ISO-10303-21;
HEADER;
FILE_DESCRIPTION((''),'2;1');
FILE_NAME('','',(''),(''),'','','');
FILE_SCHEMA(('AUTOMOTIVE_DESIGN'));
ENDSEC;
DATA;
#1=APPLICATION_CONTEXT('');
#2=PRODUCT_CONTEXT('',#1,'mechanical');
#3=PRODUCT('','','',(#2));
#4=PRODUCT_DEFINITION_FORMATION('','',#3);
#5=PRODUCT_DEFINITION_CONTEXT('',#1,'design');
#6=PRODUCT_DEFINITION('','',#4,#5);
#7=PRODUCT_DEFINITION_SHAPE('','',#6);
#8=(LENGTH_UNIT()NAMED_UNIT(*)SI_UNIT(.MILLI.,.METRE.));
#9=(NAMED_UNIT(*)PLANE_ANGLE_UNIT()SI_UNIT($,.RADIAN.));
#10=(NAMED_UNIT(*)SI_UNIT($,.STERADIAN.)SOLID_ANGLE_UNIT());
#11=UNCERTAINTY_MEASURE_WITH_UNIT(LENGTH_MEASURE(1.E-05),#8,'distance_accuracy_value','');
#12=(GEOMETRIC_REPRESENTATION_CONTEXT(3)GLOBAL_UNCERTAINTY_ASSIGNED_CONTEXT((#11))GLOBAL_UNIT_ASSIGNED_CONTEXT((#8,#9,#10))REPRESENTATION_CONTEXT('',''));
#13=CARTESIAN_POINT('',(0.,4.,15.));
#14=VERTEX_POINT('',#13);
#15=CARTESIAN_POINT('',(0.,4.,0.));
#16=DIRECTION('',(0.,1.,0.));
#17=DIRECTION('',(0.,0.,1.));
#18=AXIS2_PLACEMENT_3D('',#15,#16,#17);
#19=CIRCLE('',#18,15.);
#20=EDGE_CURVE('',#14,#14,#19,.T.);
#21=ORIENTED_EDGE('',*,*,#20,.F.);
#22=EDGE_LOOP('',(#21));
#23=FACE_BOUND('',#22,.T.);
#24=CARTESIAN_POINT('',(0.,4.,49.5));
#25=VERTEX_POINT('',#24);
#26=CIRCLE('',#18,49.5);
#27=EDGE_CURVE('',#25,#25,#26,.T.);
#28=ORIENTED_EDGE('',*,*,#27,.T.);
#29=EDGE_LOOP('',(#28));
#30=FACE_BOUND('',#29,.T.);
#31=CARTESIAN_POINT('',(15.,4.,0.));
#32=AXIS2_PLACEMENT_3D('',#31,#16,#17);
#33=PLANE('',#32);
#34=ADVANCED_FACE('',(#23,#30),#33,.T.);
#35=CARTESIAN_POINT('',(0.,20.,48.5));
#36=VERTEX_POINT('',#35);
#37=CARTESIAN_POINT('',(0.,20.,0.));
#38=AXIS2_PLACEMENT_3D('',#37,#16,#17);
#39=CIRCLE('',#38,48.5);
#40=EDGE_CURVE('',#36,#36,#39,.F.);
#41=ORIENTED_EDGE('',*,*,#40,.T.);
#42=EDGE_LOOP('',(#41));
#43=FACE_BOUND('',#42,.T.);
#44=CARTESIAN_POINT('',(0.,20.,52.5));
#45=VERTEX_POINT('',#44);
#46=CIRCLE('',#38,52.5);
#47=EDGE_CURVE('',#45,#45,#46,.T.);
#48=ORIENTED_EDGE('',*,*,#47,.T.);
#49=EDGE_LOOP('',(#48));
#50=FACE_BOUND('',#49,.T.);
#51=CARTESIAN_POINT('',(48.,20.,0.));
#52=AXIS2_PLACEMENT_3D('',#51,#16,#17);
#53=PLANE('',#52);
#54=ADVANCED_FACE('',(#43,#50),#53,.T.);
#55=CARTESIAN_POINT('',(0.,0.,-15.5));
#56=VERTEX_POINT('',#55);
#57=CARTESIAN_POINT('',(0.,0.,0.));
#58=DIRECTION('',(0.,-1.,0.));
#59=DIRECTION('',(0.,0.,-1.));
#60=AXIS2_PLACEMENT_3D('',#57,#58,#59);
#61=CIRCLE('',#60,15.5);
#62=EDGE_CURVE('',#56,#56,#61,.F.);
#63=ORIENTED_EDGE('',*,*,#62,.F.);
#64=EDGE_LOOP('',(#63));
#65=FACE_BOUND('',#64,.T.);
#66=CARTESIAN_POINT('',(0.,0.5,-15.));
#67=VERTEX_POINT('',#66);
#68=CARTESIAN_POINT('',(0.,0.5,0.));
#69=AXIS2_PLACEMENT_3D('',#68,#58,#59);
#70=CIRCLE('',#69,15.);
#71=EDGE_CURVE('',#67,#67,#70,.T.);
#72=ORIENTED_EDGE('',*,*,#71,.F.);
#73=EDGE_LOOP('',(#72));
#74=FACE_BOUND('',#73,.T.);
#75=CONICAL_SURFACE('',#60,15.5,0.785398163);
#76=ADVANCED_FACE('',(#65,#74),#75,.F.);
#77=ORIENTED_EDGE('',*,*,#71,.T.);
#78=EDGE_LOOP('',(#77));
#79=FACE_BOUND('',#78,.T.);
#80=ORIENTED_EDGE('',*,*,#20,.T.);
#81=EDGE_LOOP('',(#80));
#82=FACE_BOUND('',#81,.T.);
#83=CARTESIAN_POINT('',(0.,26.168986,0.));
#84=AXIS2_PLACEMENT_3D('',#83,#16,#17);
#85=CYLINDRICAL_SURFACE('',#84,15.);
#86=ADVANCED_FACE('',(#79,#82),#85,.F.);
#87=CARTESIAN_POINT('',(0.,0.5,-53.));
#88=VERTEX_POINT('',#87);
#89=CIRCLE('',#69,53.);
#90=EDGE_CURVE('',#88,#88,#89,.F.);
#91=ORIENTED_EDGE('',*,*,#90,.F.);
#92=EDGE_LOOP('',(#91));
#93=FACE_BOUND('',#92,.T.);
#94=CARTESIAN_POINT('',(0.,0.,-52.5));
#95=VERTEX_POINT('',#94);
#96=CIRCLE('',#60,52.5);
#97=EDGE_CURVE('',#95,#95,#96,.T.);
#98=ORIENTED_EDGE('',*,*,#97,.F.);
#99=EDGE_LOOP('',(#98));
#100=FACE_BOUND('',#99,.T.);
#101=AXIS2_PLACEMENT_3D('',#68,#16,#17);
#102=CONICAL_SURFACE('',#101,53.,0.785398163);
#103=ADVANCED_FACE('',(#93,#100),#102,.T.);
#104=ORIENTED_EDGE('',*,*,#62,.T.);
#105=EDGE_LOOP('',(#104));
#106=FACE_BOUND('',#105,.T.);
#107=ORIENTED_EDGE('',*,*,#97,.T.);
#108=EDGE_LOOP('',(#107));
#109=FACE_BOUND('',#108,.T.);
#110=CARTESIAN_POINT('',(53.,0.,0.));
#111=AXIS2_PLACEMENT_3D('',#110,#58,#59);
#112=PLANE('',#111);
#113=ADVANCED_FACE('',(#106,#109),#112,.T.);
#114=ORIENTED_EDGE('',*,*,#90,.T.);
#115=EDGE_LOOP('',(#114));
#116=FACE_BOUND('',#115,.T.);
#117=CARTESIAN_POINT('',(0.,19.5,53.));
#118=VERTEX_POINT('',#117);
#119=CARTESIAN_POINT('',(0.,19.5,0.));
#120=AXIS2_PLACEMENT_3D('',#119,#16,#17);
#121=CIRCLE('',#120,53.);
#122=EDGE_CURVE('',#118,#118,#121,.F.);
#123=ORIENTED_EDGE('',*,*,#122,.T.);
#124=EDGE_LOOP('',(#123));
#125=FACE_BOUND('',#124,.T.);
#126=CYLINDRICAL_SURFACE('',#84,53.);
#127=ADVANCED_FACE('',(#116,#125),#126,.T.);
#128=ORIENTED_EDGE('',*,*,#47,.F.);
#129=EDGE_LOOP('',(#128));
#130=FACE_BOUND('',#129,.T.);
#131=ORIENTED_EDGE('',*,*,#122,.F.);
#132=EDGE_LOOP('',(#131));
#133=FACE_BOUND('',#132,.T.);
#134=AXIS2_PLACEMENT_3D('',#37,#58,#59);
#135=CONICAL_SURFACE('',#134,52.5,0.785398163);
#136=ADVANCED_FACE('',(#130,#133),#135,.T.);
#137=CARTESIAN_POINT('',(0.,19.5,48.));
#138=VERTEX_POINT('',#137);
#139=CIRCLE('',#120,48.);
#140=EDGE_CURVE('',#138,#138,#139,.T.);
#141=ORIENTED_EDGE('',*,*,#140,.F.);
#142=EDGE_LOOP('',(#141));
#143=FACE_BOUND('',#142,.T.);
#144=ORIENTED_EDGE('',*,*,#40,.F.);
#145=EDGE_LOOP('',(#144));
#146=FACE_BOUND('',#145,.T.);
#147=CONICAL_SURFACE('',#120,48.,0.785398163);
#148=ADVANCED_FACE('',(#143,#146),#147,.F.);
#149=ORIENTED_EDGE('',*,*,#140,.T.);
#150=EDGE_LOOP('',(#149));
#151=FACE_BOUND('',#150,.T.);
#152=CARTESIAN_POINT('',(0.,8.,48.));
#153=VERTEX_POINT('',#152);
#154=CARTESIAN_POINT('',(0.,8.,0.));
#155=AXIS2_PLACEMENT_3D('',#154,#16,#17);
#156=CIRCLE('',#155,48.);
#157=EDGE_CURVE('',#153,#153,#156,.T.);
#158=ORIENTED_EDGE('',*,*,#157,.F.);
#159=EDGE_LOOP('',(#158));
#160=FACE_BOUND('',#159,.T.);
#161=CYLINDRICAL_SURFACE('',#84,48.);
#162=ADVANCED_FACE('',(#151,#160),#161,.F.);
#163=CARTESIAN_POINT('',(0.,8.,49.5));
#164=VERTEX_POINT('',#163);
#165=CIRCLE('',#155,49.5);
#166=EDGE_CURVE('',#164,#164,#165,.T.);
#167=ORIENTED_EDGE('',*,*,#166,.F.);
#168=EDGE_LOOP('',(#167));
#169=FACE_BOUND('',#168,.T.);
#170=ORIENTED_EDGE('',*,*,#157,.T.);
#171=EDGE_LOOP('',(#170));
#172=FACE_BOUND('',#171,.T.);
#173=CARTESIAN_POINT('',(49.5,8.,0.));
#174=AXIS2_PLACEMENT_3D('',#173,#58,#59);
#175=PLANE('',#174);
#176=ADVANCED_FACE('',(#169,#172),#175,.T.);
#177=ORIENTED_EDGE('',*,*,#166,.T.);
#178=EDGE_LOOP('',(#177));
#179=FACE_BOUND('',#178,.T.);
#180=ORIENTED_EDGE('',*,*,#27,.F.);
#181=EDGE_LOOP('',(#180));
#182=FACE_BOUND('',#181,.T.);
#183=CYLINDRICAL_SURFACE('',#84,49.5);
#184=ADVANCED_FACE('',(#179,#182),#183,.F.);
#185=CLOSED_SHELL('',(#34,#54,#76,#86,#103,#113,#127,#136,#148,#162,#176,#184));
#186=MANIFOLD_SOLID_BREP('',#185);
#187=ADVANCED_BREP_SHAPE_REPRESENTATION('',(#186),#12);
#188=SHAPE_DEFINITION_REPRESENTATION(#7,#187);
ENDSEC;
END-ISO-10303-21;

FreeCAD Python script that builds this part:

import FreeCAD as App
import Part
import Sketcher

V = App.Vector
Q = App.Units.Quantity


def edges_at(feature, points):
    """Names of the edges that pass closest to the given points."""
    edges = feature.Shape.Edges
    near = lambda p: min(range(len(edges)), key=lambda i: edges[i].distToShape(Part.Vertex(*p))[0])
    return sorted({f"Edge{near(p) + 1}" for p in points})

doc = App.newDocument("Part")
body = doc.addObject("PartDesign::Body", "Body")

# Sketch on XY plane
sketch1 = body.newObject("Sketcher::SketchObject", "Sketch")
sketch1.AttachmentSupport = (doc.getObject("XY_Plane"), [""])
sketch1.MapMode = "FlatFace"
sketch1.addGeometry(Part.LineSegment(V(-53, 20, 0), V(-53, 0, 0)), False)
sketch1.addGeometry(Part.LineSegment(V(-53, 0, 0), V(-15, 0, 0)), False)
sketch1.addGeometry(Part.LineSegment(V(-15, 0, 0), V(-15, 4, 0)), False)
sketch1.addGeometry(Part.LineSegment(V(-15, 4, 0), V(-49.5, 4, 0)), False)
sketch1.addGeometry(Part.LineSegment(V(-49.5, 4, 0), V(-49.5, 8, 0)), False)
sketch1.addGeometry(Part.LineSegment(V(-49.5, 8, 0), V(-48, 8, 0)), False)
sketch1.addGeometry(Part.LineSegment(V(-48, 8, 0), V(-48, 20, 0)), False)
sketch1.addGeometry(Part.LineSegment(V(-48, 20, 0), V(-53, 20, 0)), False)
sketch1.addConstraint(Sketcher.Constraint("Coincident", 0, 2, 1, 1))
sketch1.addConstraint(Sketcher.Constraint("Coincident", 1, 2, 2, 1))
sketch1.addConstraint(Sketcher.Constraint("Coincident", 2, 2, 3, 1))
sketch1.addConstraint(Sketcher.Constraint("Coincident", 3, 2, 4, 1))
sketch1.addConstraint(Sketcher.Constraint("Coincident", 4, 2, 5, 1))
sketch1.addConstraint(Sketcher.Constraint("Coincident", 5, 2, 6, 1))
sketch1.addConstraint(Sketcher.Constraint("Coincident", 6, 2, 7, 1))
sketch1.addConstraint(Sketcher.Constraint("Coincident", 7, 2, 0, 1))
sketch1.addConstraint(Sketcher.Constraint("Vertical", 0))
sketch1.addConstraint(Sketcher.Constraint("Horizontal", 1))
sketch1.addConstraint(Sketcher.Constraint("Vertical", 2))
sketch1.addConstraint(Sketcher.Constraint("Horizontal", 3))
sketch1.addConstraint(Sketcher.Constraint("Vertical", 4))
sketch1.addConstraint(Sketcher.Constraint("Horizontal", 5))
sketch1.addConstraint(Sketcher.Constraint("Vertical", 6))
sketch1.addConstraint(Sketcher.Constraint("Horizontal", 7))
sketch1.addConstraint(Sketcher.Constraint("PointOnObject", 0, 2, -1))
sketch1.addConstraint(Sketcher.Constraint("Equal", 2, 4))
sketch1.addConstraint(Sketcher.Constraint("DistanceX", 1, 1, 1, 2, Q("38 mm")))
sketch1.addConstraint(Sketcher.Constraint("DistanceX", 7, 2, 7, 1, Q("5 mm")))
sketch1.addConstraint(Sketcher.Constraint("DistanceY", 0, 2, 0, 1, Q("20 mm")))
sketch1.addConstraint(Sketcher.Constraint("DistanceY", 2, 1, 2, 2, Q("4 mm")))
sketch1.addConstraint(Sketcher.Constraint("DistanceX", 3, 2, 3, 1, Q("34.5 mm")))
sketch1.addConstraint(Sketcher.Constraint("DistanceX", 0, 2, -1, 1, Q("53 mm")))
revolution = body.newObject("PartDesign::Revolution", "Revolution")
revolution.Profile = sketch1
revolution.ReferenceAxis = (sketch1, ["V_Axis"])
revolution.Angle = 360
doc.recompute()

chamfer = body.newObject("PartDesign::Chamfer", "Chamfer")
chamfer.Base = (revolution, edges_at(revolution, [
    (0, 20, -53),
    (0, 20, -48),
    (0, 0, -15),
    (0, 0, -53),
]))
chamfer.Size = 0.5

doc.recompute()
